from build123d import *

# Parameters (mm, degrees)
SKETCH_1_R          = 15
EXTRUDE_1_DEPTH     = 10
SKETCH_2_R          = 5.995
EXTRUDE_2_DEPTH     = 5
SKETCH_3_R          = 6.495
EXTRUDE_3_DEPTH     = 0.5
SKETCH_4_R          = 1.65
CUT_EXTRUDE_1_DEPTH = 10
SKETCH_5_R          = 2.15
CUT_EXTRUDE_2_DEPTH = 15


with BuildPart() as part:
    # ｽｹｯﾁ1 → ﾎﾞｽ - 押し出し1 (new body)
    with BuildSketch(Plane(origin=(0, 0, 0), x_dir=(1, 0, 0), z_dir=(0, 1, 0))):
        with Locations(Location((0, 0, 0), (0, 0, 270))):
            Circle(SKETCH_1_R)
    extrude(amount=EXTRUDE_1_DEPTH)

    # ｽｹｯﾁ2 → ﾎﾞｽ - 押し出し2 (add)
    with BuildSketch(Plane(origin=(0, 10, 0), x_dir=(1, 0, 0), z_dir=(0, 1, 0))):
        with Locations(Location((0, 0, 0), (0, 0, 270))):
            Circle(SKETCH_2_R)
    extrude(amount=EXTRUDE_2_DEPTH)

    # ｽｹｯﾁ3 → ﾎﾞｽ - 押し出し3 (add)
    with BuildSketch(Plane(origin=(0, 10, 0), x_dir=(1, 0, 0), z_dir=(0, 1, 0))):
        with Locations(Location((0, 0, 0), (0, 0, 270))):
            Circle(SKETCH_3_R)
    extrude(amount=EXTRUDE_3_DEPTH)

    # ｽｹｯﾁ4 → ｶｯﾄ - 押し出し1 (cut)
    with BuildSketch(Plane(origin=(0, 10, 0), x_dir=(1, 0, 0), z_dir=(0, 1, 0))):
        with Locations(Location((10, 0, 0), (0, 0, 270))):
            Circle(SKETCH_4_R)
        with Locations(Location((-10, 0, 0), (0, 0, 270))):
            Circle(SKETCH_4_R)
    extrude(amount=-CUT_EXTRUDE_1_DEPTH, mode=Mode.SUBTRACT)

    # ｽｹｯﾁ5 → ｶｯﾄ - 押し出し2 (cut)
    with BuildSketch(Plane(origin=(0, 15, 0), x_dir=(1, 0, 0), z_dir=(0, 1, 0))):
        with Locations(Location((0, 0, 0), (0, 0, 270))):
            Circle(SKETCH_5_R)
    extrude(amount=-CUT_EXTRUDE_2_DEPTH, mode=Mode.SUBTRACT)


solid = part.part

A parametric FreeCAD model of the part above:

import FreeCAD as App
import Part
import Sketcher
from FreeCAD import Vector

doc = App.newDocument("Part")
params = doc.addObject("Spreadsheet::Sheet", "Params")
for row, (alias, value) in enumerate([
    ("sketch1_diameter", "30 mm"),
    ("pad1_length", "10 mm"),
    ("sketch2_diameter", "11.99 mm"),
    ("pad2_length", "5 mm"),
    ("sketch3_diameter", "12.99 mm"),
    ("pad3_length", "0.5 mm"),
    ("sketch4_diameter", "3.3 mm"),
    ("pocket1_length", "10 mm"),
    ("sketch5_diameter", "4.3 mm"),
    ("pocket2_length", "15 mm"),
], start=1):
    params.set(f"A{row}", alias)
    params.set(f"B{row}", "=" + value)
    params.setAlias(f"B{row}", alias)

body = doc.addObject("PartDesign::Body", "Body")

# Sketch on XZ plane
sketch1 = body.newObject("Sketcher::SketchObject", "Sketch")
sketch1.AttachmentSupport = (doc.getObject("XZ_Plane"), [""])
sketch1.MapMode = "FlatFace"
sketch1.addGeometry(Part.Circle(Vector(0, 0, 0), Vector(0, 0, 1), 15), False)
sketch1.addConstraint([
    Sketcher.Constraint("Coincident", 0, 3, -1, 1),
    Sketcher.Constraint("Diameter", 0, 30.0),
])
sketch1.setExpression("Constraints[1]", "Params.sketch1_diameter")
pad1 = body.newObject("PartDesign::Pad", "Pad")
pad1.Profile = sketch1
pad1.setExpression("Length", "Params.pad1_length")
pad1.Reversed = True

# Sketch on XZ plane
sketch2 = body.newObject("Sketcher::SketchObject", "Sketch001")
sketch2.AttachmentSupport = (doc.getObject("XZ_Plane"), [""])
sketch2.MapMode = "FlatFace"
sketch2.AttachmentOffset = App.Placement(Vector(0, 0, -10), App.Rotation())
sketch2.addGeometry(Part.Circle(Vector(0, 0, 0), Vector(0, 0, 1), 6), False)
sketch2.addConstraint([
    Sketcher.Constraint("Coincident", 0, 3, -1, 1),
    Sketcher.Constraint("Diameter", 0, 11.99),
])
sketch2.setExpression("Constraints[1]", "Params.sketch2_diameter")
pad2 = body.newObject("PartDesign::Pad", "Pad001")
pad2.Profile = sketch2
pad2.setExpression("Length", "Params.pad2_length")
pad2.Reversed = True

# Sketch on XZ plane
sketch3 = body.newObject("Sketcher::SketchObject", "Sketch002")
sketch3.AttachmentSupport = (doc.getObject("XZ_Plane"), [""])
sketch3.MapMode = "FlatFace"
sketch3.AttachmentOffset = App.Placement(Vector(0, 0, -10), App.Rotation())
sketch3.addGeometry(Part.Circle(Vector(0, 0, 0), Vector(0, 0, 1), 6), False)
sketch3.addConstraint([
    Sketcher.Constraint("Coincident", 0, 3, -1, 1),
    Sketcher.Constraint("Diameter", 0, 12.99),
])
sketch3.setExpression("Constraints[1]", "Params.sketch3_diameter")
pad3 = body.newObject("PartDesign::Pad", "Pad002")
pad3.Profile = sketch3
pad3.setExpression("Length", "Params.pad3_length")
pad3.Reversed = True

# Sketch on XZ plane
sketch4 = body.newObject("Sketcher::SketchObject", "Sketch003")
sketch4.AttachmentSupport = (doc.getObject("XZ_Plane"), [""])
sketch4.MapMode = "FlatFace"
sketch4.AttachmentOffset = App.Placement(Vector(0, 0, -10), App.Rotation())
sketch4.addGeometry([
    Part.Circle(Vector(10, 0, 0), Vector(0, 0, 1), 1.6),
    Part.Circle(Vector(-10, 0, 0), Vector(0, 0, 1), 1.6),
], False)
sketch4.addConstraint([
    Sketcher.Constraint("Equal", 0, 1),
    Sketcher.Constraint("Symmetric", 0, 3, 1, 3, -1, 1),
    Sketcher.Constraint("PointOnObject", 0, 3, -1),
    Sketcher.Constraint("Diameter", 0, 3.3),
    Sketcher.Constraint("DistanceX", -1, 1, 0, 3, 10.0),
])
sketch4.setExpression("Constraints[3]", "Params.sketch4_diameter")
pocket1 = body.newObject("PartDesign::Pocket", "Pocket")
pocket1.Profile = sketch4
pocket1.setExpression("Length", "Params.pocket1_length")
pocket1.Reversed = True

# Sketch on XZ plane
sketch5 = body.newObject("Sketcher::SketchObject", "Sketch004")
sketch5.AttachmentSupport = (doc.getObject("XZ_Plane"), [""])
sketch5.MapMode = "FlatFace"
sketch5.AttachmentOffset = App.Placement(Vector(0, 0, -15), App.Rotation())
sketch5.addGeometry(Part.Circle(Vector(0, 0, 0), Vector(0, 0, 1), 2.1), False)
sketch5.addConstraint([
    Sketcher.Constraint("Coincident", 0, 3, -1, 1),
    Sketcher.Constraint("Diameter", 0, 4.3),
])
sketch5.setExpression("Constraints[1]", "Params.sketch5_diameter")
pocket2 = body.newObject("PartDesign::Pocket", "Pocket001")
pocket2.Profile = sketch5
pocket2.setExpression("Length", "Params.pocket2_length")
pocket2.Reversed = True

doc.recompute()
